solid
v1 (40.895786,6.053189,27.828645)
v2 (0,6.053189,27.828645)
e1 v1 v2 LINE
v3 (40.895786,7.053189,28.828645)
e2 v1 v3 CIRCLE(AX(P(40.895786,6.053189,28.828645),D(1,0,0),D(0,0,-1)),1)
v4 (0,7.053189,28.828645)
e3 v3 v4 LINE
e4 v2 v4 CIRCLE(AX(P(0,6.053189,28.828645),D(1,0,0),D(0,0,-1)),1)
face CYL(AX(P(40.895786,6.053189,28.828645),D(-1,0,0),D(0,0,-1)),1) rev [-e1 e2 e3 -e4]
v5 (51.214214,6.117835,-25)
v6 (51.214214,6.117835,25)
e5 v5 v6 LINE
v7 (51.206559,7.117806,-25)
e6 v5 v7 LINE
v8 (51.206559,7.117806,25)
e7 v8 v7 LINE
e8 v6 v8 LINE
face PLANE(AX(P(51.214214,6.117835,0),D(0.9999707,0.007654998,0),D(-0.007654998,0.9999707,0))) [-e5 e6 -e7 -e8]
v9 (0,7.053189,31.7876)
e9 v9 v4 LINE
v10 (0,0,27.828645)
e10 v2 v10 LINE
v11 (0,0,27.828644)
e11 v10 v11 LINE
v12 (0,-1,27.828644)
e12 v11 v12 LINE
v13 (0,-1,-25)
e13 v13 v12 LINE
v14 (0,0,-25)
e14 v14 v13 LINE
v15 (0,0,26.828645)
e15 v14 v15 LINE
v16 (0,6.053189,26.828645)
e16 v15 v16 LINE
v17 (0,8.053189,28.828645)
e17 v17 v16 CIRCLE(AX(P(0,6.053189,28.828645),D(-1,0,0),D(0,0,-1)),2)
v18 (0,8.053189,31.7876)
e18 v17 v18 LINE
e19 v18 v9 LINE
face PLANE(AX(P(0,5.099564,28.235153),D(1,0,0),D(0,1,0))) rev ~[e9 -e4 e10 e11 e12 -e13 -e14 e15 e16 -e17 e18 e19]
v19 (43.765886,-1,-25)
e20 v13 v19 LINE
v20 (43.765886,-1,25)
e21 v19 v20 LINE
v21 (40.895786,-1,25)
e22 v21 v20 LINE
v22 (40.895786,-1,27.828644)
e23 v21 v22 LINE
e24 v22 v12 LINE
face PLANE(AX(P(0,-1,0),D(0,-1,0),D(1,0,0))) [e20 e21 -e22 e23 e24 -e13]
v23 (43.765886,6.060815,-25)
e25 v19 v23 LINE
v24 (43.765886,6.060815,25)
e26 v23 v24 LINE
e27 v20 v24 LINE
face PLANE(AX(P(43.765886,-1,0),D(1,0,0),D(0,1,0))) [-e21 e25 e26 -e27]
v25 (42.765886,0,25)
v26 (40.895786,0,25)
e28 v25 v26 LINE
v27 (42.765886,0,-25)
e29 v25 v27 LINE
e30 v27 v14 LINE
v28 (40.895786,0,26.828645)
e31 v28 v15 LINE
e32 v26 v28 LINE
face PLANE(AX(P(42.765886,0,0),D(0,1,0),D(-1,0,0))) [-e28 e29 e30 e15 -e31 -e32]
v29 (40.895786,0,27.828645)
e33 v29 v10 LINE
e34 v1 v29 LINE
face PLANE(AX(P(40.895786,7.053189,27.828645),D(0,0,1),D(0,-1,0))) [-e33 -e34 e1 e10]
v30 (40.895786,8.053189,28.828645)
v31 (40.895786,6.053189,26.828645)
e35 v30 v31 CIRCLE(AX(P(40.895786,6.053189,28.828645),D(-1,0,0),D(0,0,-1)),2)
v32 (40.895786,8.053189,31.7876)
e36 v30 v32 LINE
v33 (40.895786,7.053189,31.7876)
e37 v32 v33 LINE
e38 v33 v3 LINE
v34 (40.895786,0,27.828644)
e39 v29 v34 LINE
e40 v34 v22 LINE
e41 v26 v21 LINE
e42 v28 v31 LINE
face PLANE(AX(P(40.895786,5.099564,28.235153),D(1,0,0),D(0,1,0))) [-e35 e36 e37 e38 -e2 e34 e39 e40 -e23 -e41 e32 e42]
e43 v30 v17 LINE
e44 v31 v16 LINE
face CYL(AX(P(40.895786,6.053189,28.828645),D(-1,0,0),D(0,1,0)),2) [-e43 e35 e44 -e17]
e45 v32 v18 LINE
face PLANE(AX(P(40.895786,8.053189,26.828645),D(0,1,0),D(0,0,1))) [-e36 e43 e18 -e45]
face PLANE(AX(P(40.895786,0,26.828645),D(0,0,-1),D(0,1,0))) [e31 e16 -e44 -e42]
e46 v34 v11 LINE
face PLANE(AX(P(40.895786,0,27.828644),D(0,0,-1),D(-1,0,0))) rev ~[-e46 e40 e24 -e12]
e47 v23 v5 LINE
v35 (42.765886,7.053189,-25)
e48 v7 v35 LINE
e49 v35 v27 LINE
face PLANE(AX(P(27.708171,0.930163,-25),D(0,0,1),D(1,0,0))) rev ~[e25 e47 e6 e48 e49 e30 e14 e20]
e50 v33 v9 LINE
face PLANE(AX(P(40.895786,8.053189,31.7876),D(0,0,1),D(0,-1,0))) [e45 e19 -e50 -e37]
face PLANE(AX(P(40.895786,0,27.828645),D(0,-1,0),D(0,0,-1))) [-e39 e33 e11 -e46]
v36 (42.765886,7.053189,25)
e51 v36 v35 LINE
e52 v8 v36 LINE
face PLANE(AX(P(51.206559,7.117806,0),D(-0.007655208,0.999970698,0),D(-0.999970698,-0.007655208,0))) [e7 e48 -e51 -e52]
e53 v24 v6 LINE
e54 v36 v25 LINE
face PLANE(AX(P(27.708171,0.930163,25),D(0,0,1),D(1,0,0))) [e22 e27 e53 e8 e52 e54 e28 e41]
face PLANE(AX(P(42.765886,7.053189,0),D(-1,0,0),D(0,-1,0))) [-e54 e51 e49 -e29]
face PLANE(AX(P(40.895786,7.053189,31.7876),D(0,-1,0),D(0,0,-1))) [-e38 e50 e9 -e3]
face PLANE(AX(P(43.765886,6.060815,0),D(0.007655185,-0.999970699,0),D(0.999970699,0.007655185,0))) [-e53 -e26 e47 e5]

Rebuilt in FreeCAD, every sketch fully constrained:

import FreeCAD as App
import Part
import Sketcher
from FreeCAD import Vector
Q = App.Units.Quantity


def edges_at(feature, points):
    """Names of the edges that pass closest to the given points."""
    edges = feature.Shape.Edges
    near = lambda p: min(range(len(edges)), key=lambda i: edges[i].distToShape(Part.Vertex(*p))[0])
    return sorted({f"Edge{near(p) + 1}" for p in points})

doc = App.newDocument("Part")
params = doc.addObject("Spreadsheet::Sheet", "Params")
for row, (alias, value) in enumerate([
    ("sketch1_height", "1 mm"),
    ("sketch1_length", "1 mm"),
    ("pad1_length", "50 mm"),
    ("pad2_length", "1 mm"),
    ("sketch3_width", "1 mm"),
    ("pad3_length", "40.895786 mm"),
    ("fillet_radius", "1 mm"),
    ("fillet2_radius", "2 mm"),
], start=1):
    params.set(f"A{row}", alias)
    params.set(f"B{row}", "=" + value)
    params.setAlias(f"B{row}", alias)

body = doc.addObject("PartDesign::Body", "Body")

sketch1 = body.newObject("Sketcher::SketchObject", "Sketch")
sketch1.AttachmentSupport = (doc.getObject("XY_Plane"), [""])
sketch1.MapMode = "FlatFace"
sketch1.addGeometry([
    Part.LineSegment(Vector(42.765886, 0, 0), Vector(0, 0, 0)),
    Part.LineSegment(Vector(0, 0, 0), Vector(0, -1, 0)),
    Part.LineSegment(Vector(0, -1, 0), Vector(43.765886, -1, 0)),
    Part.LineSegment(Vector(43.765886, -1, 0), Vector(43.765886, 6.060815, 0)),
    Part.LineSegment(Vector(43.765886, 6.060815, 0), Vector(51.214214, 6.117835, 0)),
    Part.LineSegment(Vector(51.214214, 6.117835, 0), Vector(51.206559, 7.117806, 0)),
    Part.LineSegment(Vector(51.206559, 7.117806, 0), Vector(42.765886, 7.053189, 0)),
    Part.LineSegment(Vector(42.765886, 7.053189, 0), Vector(42.765886, 0, 0)),
], False)
sketch1.addConstraint([
    Sketcher.Constraint("Coincident", 0, 2, 1, 1),
    Sketcher.Constraint("Coincident", 1, 2, 2, 1),
    Sketcher.Constraint("Coincident", 2, 2, 3, 1),
    Sketcher.Constraint("Coincident", 3, 2, 4, 1),
    Sketcher.Constraint("Coincident", 4, 2, 5, 1),
    Sketcher.Constraint("Coincident", 5, 2, 6, 1),
    Sketcher.Constraint("Coincident", 6, 2, 7, 1),
    Sketcher.Constraint("Coincident", 7, 2, 0, 1),
    Sketcher.Constraint("Horizontal", 0),
    Sketcher.Constraint("Vertical", 1),
    Sketcher.Constraint("Horizontal", 2),
    Sketcher.Constraint("Vertical", 3),
    Sketcher.Constraint("Vertical", 7),
    Sketcher.Constraint("Coincident", 0, 2, -1, 1),
    Sketcher.Constraint("Perpendicular", 4, 5),
    Sketcher.Constraint("Perpendicular", 5, 6),
    Sketcher.Constraint("DistanceY", 1, 2, 1, 1, Q("1 mm")),
    Sketcher.Constraint("Distance", 5, Q("1 mm")),
    Sketcher.Constraint("DistanceX", 6, 2, 3, 2, Q("1 mm")),
    Sketcher.Constraint("DistanceY", 7, 2, 7, 1, Q("7.053189 mm")),
    Sketcher.Constraint("Distance", 6, Q("8.44092 mm")),
    Sketcher.Constraint("DistanceX", 0, 2, 0, 1, Q("42.765886 mm")),
    Sketcher.Constraint("DistanceY", 3, 1, 3, 2, Q("7.060815 mm")),
])
sketch1.setExpression("Constraints[16]", "Params.sketch1_height")
sketch1.setExpression("Constraints[17]", "Params.sketch1_length")
pad1 = body.newObject("PartDesign::Pad", "Pad")
pad1.Profile = sketch1
pad1.setExpression("Length", "Params.pad1_length")
pad1.Midplane = True

sketch2 = body.newObject("Sketcher::SketchObject", "Sketch001")
sketch2.AttachmentSupport = (doc.getObject("XZ_Plane"), [""])
sketch2.MapMode = "FlatFace"
sketch2.addGeometry([
    Part.LineSegment(Vector(40.895786, 27.828644, 0), Vector(40.895786, 25, 0)),
    Part.LineSegment(Vector(40.895786, 25, 0), Vector(0, 25, 0)),
    Part.LineSegment(Vector(0, 25, 0), Vector(0, 27.828644, 0)),
    Part.LineSegment(Vector(0, 27.828644, 0), Vector(40.895786, 27.828644, 0)),
], False)
sketch2.addConstraint([
    Sketcher.Constraint("Coincident", 0, 2, 1, 1),
    Sketcher.Constraint("Coincident", 1, 2, 2, 1),
    Sketcher.Constraint("Coincident", 2, 2, 3, 1),
    Sketcher.Constraint("Coincident", 3, 2, 0, 1),
    Sketcher.Constraint("Vertical", 0),
    Sketcher.Constraint("Horizontal", 1),
    Sketcher.Constraint("Vertical", 2),
    Sketcher.Constraint("Horizontal", 3),
    Sketcher.Constraint("PointOnObject", 1, 2, -2),
    Sketcher.Constraint("DistanceY", -1, 1, 0, 2, Q("25 mm")),
    Sketcher.Constraint("DistanceX", 1, 2, 1, 1, Q("40.895786 mm")),
    Sketcher.Constraint("DistanceY", 0, 2, 0, 1, Q("2.828645 mm")),
])
pad2 = body.newObject("PartDesign::Pad", "Pad001")
pad2.Profile = sketch2
pad2.setExpression("Length", "Params.pad2_length")

sketch3 = body.newObject("Sketcher::SketchObject", "Sketch002")
sketch3.AttachmentSupport = (doc.getObject("YZ_Plane"), [""])
sketch3.MapMode = "FlatFace"
sketch3.AttachmentOffset = App.Placement(Vector(0, 0, 40.895786), App.Rotation())
sketch3.addGeometry([
    Part.LineSegment(Vector(7.053189, 27.828645, 0), Vector(0, 27.828645, 0)),
    Part.LineSegment(Vector(0, 27.828645, 0), Vector(0, 26.828645, 0)),
    Part.LineSegment(Vector(0, 26.828645, 0), Vector(8.053189, 26.828645, 0)),
    Part.LineSegment(Vector(8.053189, 26.828645, 0), Vector(8.053189, 31.7876, 0)),
    Part.LineSegment(Vector(8.053189, 31.7876, 0), Vector(7.053189, 31.7876, 0)),
    Part.LineSegment(Vector(7.053189, 31.7876, 0), Vector(7.053189, 27.828645, 0)),
], False)
sketch3.addConstraint([
    Sketcher.Constraint("Coincident", 0, 2, 1, 1),
    Sketcher.Constraint("Coincident", 1, 2, 2, 1),
    Sketcher.Constraint("Coincident", 2, 2, 3, 1),
    Sketcher.Constraint("Coincident", 3, 2, 4, 1),
    Sketcher.Constraint("Coincident", 4, 2, 5, 1),
    Sketcher.Constraint("Coincident", 5, 2, 0, 1),
    Sketcher.Constraint("Horizontal", 0),
    Sketcher.Constraint("Vertical", 1),
    Sketcher.Constraint("Horizontal", 2),
    Sketcher.Constraint("Vertical", 3),
    Sketcher.Constraint("Horizontal", 4),
    Sketcher.Constraint("Vertical", 5),
    Sketcher.Constraint("PointOnObject", 0, 2, -2),
    Sketcher.Constraint("Equal", 4, 1),
    Sketcher.Constraint("DistanceX", 4, 2, 4, 1, Q("1 mm")),
    Sketcher.Constraint("DistanceX", 0, 2, 0, 1, Q("7.053189 mm")),
    Sketcher.Constraint("DistanceY", -1, 1, 3, 2, Q("31.7876 mm")),
    Sketcher.Constraint("DistanceY", 3, 1, 3, 2, Q("4.958955 mm")),
])
sketch3.setExpression("Constraints[14]", "Params.sketch3_width")
pad3 = body.newObject("PartDesign::Pad", "Pad002")
pad3.Profile = sketch3
pad3.setExpression("Length", "Params.pad3_length")
pad3.Reversed = True
doc.recompute()

fillet = body.newObject("PartDesign::Fillet", "Fillet")
fillet.Base = (pad3, edges_at(pad3, [(20.448, 7.053, 27.829)]))
fillet.setExpression("Radius", "Params.fillet_radius")
doc.recompute()

fillet2 = body.newObject("PartDesign::Fillet", "Fillet001")
fillet2.Base = (fillet, edges_at(fillet, [(20.448, 8.053, 26.829)]))
fillet2.setExpression("Radius", "Params.fillet2_radius")

doc.recompute()
